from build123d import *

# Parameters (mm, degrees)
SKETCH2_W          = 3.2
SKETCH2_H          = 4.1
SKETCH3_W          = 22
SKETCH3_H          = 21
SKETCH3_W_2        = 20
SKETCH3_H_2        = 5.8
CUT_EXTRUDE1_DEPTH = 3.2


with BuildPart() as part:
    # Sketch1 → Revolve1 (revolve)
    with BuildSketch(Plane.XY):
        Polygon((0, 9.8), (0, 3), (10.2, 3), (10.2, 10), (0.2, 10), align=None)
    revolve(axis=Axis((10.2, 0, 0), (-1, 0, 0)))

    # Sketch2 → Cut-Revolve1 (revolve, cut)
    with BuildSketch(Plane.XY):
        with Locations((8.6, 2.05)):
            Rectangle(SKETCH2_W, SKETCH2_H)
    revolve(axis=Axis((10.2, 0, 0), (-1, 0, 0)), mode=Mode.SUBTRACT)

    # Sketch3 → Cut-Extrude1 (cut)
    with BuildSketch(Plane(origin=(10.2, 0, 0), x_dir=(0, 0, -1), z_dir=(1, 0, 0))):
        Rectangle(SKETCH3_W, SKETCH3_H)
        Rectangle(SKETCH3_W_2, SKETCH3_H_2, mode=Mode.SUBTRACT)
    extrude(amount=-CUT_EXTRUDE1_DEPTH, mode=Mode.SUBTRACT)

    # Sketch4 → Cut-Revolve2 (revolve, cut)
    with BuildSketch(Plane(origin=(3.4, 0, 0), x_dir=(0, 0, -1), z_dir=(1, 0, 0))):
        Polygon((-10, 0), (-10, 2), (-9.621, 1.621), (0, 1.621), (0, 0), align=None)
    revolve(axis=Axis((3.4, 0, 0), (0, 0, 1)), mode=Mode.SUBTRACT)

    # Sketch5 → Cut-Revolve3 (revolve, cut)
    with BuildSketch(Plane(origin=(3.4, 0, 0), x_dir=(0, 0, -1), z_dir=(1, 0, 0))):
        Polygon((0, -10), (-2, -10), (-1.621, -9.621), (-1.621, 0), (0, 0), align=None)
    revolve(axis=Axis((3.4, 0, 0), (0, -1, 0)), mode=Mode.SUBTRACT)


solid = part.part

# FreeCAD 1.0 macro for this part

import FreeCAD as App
import Part
import Sketcher
Q = App.Units.Quantity

doc = App.newDocument("Part")
body = doc.addObject("PartDesign::Body", "Body")

sketch1 = body.newObject("Sketcher::SketchObject", "Sketch")
sketch1.AttachmentSupport = (doc.getObject("XY_Plane"), [""])
sketch1.MapMode = "FlatFace"
sketch1.addGeometry([
    Part.LineSegment(App.Vector(0, 9.8, 0), App.Vector(0, 3, 0)),
    Part.LineSegment(App.Vector(0, 3, 0), App.Vector(10.2, 3, 0)),
    Part.LineSegment(App.Vector(10.2, 3, 0), App.Vector(10.2, 10, 0)),
    Part.LineSegment(App.Vector(10.2, 10, 0), App.Vector(0.2, 10, 0)),
    Part.LineSegment(App.Vector(0.2, 10, 0), App.Vector(0, 9.8, 0)),
], False)
sketch1.addConstraint([
    Sketcher.Constraint("Coincident", 0, 2, 1, 1),
    Sketcher.Constraint("Coincident", 1, 2, 2, 1),
    Sketcher.Constraint("Coincident", 2, 2, 3, 1),
    Sketcher.Constraint("Coincident", 3, 2, 4, 1),
    Sketcher.Constraint("Coincident", 4, 2, 0, 1),
    Sketcher.Constraint("Vertical", 0),
    Sketcher.Constraint("Horizontal", 1),
    Sketcher.Constraint("Vertical", 2),
    Sketcher.Constraint("Horizontal", 3),
    Sketcher.Constraint("PointOnObject", 0, 2, -2),
    Sketcher.Constraint("DistanceX", 3, 2, 3, 1, Q("10 mm")),
    Sketcher.Constraint("DistanceY", 2, 1, 2, 2, Q("7 mm")),
    Sketcher.Constraint("Angle", 4, Q("-135 deg")),
    Sketcher.Constraint("DistanceX", 1, 1, 1, 2, Q("10.2 mm")),
    Sketcher.Constraint("DistanceY", -1, 1, 0, 2, Q("3 mm")),
])
revolution = body.newObject("PartDesign::Revolution", "Revolution")
revolution.Profile = sketch1
revolution.ReferenceAxis = (sketch1, ["H_Axis"])
revolution.Angle = 360

sketch2 = body.newObject("Sketcher::SketchObject", "Sketch001")
sketch2.AttachmentSupport = (doc.getObject("XY_Plane"), [""])
sketch2.MapMode = "FlatFace"
sketch2.addGeometry([
    Part.LineSegment(App.Vector(7, 4.1, 0), App.Vector(7, 0, 0)),
    Part.LineSegment(App.Vector(7, 0, 0), App.Vector(10.2, 0, 0)),
    Part.LineSegment(App.Vector(10.2, 0, 0), App.Vector(10.2, 4.1, 0)),
    Part.LineSegment(App.Vector(10.2, 4.1, 0), App.Vector(7, 4.1, 0)),
], False)
sketch2.addConstraint([
    Sketcher.Constraint("Coincident", 0, 2, 1, 1),
    Sketcher.Constraint("Coincident", 1, 2, 2, 1),
    Sketcher.Constraint("Coincident", 2, 2, 3, 1),
    Sketcher.Constraint("Coincident", 3, 2, 0, 1),
    Sketcher.Constraint("Vertical", 0),
    Sketcher.Constraint("Horizontal", 1),
    Sketcher.Constraint("Vertical", 2),
    Sketcher.Constraint("Horizontal", 3),
    Sketcher.Constraint("PointOnObject", 0, 2, -1),
    Sketcher.Constraint("DistanceX", 1, 1, 1, 2, Q("3.2 mm")),
    Sketcher.Constraint("DistanceY", 0, 2, 0, 1, Q("4.1 mm")),
    Sketcher.Constraint("DistanceX", -1, 1, 0, 2, Q("7 mm")),
])
groove = body.newObject("PartDesign::Groove", "Groove")
groove.Profile = sketch2
groove.ReferenceAxis = (sketch2, ["H_Axis"])
groove.Angle = 360

sketch3 = body.newObject("Sketcher::SketchObject", "Sketch002")
sketch3.AttachmentSupport = (doc.getObject("YZ_Plane"), [""])
sketch3.MapMode = "FlatFace"
sketch3.AttachmentOffset = App.Placement(App.Vector(0, 0, 10.2), App.Rotation())
sketch3.addGeometry([
    Part.LineSegment(App.Vector(10.5, 11, 0), App.Vector(-10.5, 11, 0)),
    Part.LineSegment(App.Vector(-10.5, 11, 0), App.Vector(-10.5, -11, 0)),
    Part.LineSegment(App.Vector(-10.5, -11, 0), App.Vector(10.5, -11, 0)),
    Part.LineSegment(App.Vector(10.5, -11, 0), App.Vector(10.5, 11, 0)),
    Part.LineSegment(App.Vector(-2.9, -10, 0), App.Vector(-2.9, 10, 0)),
    Part.LineSegment(App.Vector(-2.9, 10, 0), App.Vector(2.9, 10, 0)),
    Part.LineSegment(App.Vector(2.9, 10, 0), App.Vector(2.9, -10, 0)),
    Part.LineSegment(App.Vector(2.9, -10, 0), App.Vector(-2.9, -10, 0)),
], False)
sketch3.addConstraint([
    Sketcher.Constraint("Coincident", 0, 2, 1, 1),
    Sketcher.Constraint("Coincident", 1, 2, 2, 1),
    Sketcher.Constraint("Coincident", 2, 2, 3, 1),
    Sketcher.Constraint("Coincident", 3, 2, 0, 1),
    Sketcher.Constraint("Coincident", 4, 2, 5, 1),
    Sketcher.Constraint("Coincident", 5, 2, 6, 1),
    Sketcher.Constraint("Coincident", 6, 2, 7, 1),
    Sketcher.Constraint("Coincident", 7, 2, 4, 1),
    Sketcher.Constraint("Horizontal", 0),
    Sketcher.Constraint("Vertical", 1),
    Sketcher.Constraint("Horizontal", 2),
    Sketcher.Constraint("Vertical", 3),
    Sketcher.Constraint("Vertical", 4),
    Sketcher.Constraint("Horizontal", 5),
    Sketcher.Constraint("Vertical", 6),
    Sketcher.Constraint("Horizontal", 7),
    Sketcher.Constraint("Symmetric", 0, 2, 2, 2, -1, 1),
    Sketcher.Constraint("Symmetric", 4, 2, 6, 2, -1, 1),
    Sketcher.Constraint("DistanceX", 0, 2, 0, 1, Q("21 mm")),
    Sketcher.Constraint("DistanceY", 1, 2, 1, 1, Q("22 mm")),
    Sketcher.Constraint("DistanceY", 4, 1, 4, 2, Q("20 mm")),
    Sketcher.Constraint("DistanceX", 5, 1, 5, 2, Q("5.8 mm")),
])
pocket1 = body.newObject("PartDesign::Pocket", "Pocket")
pocket1.Profile = sketch3
pocket1.Length = 3.2

sketch4 = body.newObject("Sketcher::SketchObject", "Sketch003")
sketch4.AttachmentSupport = (doc.getObject("YZ_Plane"), [""])
sketch4.MapMode = "FlatFace"
sketch4.AttachmentOffset = App.Placement(App.Vector(0, 0, 3.4), App.Rotation())
sketch4.addGeometry([
    Part.LineSegment(App.Vector(2, 10, 0), App.Vector(0, 10, 0)),
    Part.LineSegment(App.Vector(0, 10, 0), App.Vector(0, 0, 0)),
    Part.LineSegment(App.Vector(0, 0, 0), App.Vector(1.621, 0, 0)),
    Part.LineSegment(App.Vector(1.621, 0, 0), App.Vector(1.621, 9.621, 0)),
    Part.LineSegment(App.Vector(1.621, 9.621, 0), App.Vector(2, 10, 0)),
], False)
sketch4.addConstraint([
    Sketcher.Constraint("Coincident", 0, 2, 1, 1),
    Sketcher.Constraint("Coincident", 1, 2, 2, 1),
    Sketcher.Constraint("Coincident", 2, 2, 3, 1),
    Sketcher.Constraint("Coincident", 3, 2, 4, 1),
    Sketcher.Constraint("Coincident", 4, 2, 0, 1),
    Sketcher.Constraint("Horizontal", 0),
    Sketcher.Constraint("Vertical", 1),
    Sketcher.Constraint("Horizontal", 2),
    Sketcher.Constraint("Vertical", 3),
    Sketcher.Constraint("Coincident", 1, 2, -1, 1),
    Sketcher.Constraint("DistanceX", 0, 2, 0, 1, Q("2 mm")),
    Sketcher.Constraint("DistanceY", 1, 2, 1, 1, Q("10 mm")),
    Sketcher.Constraint("Angle", 4, Q("45 deg")),
    Sketcher.Constraint("DistanceX", 2, 1, 2, 2, Q("1.621 mm")),
])
groove2 = body.newObject("PartDesign::Groove", "Groove001")
groove2.Profile = sketch4
groove2.ReferenceAxis = (sketch4, ["V_Axis"])
groove2.Angle = 360

sketch5 = body.newObject("Sketcher::SketchObject", "Sketch004")
sketch5.AttachmentSupport = (doc.getObject("YZ_Plane"), [""])
sketch5.MapMode = "FlatFace"
sketch5.AttachmentOffset = App.Placement(App.Vector(0, 0, 3.4), App.Rotation())
sketch5.addGeometry([
    Part.LineSegment(App.Vector(-10, 2, 0), App.Vector(-10, 0, 0)),
    Part.LineSegment(App.Vector(-10, 0, 0), App.Vector(0, 0, 0)),
    Part.LineSegment(App.Vector(0, 0, 0), App.Vector(0, 1.621, 0)),
    Part.LineSegment(App.Vector(0, 1.621, 0), App.Vector(-9.621, 1.621, 0)),
    Part.LineSegment(App.Vector(-9.621, 1.621, 0), App.Vector(-10, 2, 0)),
], False)
sketch5.addConstraint([
    Sketcher.Constraint("Coincident", 0, 2, 1, 1),
    Sketcher.Constraint("Coincident", 1, 2, 2, 1),
    Sketcher.Constraint("Coincident", 2, 2, 3, 1),
    Sketcher.Constraint("Coincident", 3, 2, 4, 1),
    Sketcher.Constraint("Coincident", 4, 2, 0, 1),
    Sketcher.Constraint("Vertical", 0),
    Sketcher.Constraint("Horizontal", 1),
    Sketcher.Constraint("Vertical", 2),
    Sketcher.Constraint("Horizontal", 3),
    Sketcher.Constraint("Coincident", 1, 2, -1, 1),
    Sketcher.Constraint("DistanceX", 1, 1, 1, 2, Q("10 mm")),
    Sketcher.Constraint("DistanceY", 0, 2, 0, 1, Q("2 mm")),
    Sketcher.Constraint("Angle", 4, Q("135 deg")),
    Sketcher.Constraint("DistanceX", 3, 2, 3, 1, Q("9.621 mm")),
])
groove3 = body.newObject("PartDesign::Groove", "Groove002")
groove3.Profile = sketch5
groove3.ReferenceAxis = (sketch5, ["H_Axis"])
groove3.Angle = 360

doc.recompute()
